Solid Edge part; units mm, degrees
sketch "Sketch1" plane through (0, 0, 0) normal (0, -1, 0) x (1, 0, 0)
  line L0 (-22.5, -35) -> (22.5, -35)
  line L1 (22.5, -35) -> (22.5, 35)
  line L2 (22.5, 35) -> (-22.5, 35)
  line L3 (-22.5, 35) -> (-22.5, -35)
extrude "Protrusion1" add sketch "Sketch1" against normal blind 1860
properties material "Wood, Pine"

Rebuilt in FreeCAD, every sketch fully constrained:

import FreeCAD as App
import Part
import Sketcher
Q = App.Units.Quantity


def add_polygon(sketch, points):
    """Adds a closed chain of lines whose ends are joined by coincident constraints."""
    first, n = sketch.GeometryCount, len(points)
    for a, b in zip(points, points[1:] + points[:1]):
        sketch.addGeometry(Part.LineSegment(App.Vector(*a, 0), App.Vector(*b, 0)), False)
    for i in range(n):
        sketch.addConstraint(Sketcher.Constraint("Coincident", first + i, 2, first + (i + 1) % n, 1))

doc = App.newDocument("Part")
body = doc.addObject("PartDesign::Body", "Body")

# Sketch on XZ plane
sketch1 = body.newObject("Sketcher::SketchObject", "Sketch")
sketch1.AttachmentSupport = (doc.getObject("XZ_Plane"), [""])
sketch1.MapMode = "FlatFace"
add_polygon(sketch1, [(-22.5, 35), (-22.5, -35), (22.5, -35), (22.5, 35)])  # lines 0-3
sketch1.addConstraint(Sketcher.Constraint("Vertical", 0))
sketch1.addConstraint(Sketcher.Constraint("Horizontal", 1))
sketch1.addConstraint(Sketcher.Constraint("Vertical", 2))
sketch1.addConstraint(Sketcher.Constraint("Horizontal", 3))
sketch1.addConstraint(Sketcher.Constraint("Symmetric", 0, 2, 2, 2, -1, 1))
sketch1.addConstraint(Sketcher.Constraint("DistanceX", 1, 1, 1, 2, Q("45 mm")))
sketch1.addConstraint(Sketcher.Constraint("DistanceY", 0, 2, 0, 1, Q("70 mm")))
pad1 = body.newObject("PartDesign::Pad", "Pad")
pad1.Profile = sketch1
pad1.Length = 1860
pad1.Reversed = True

doc.recompute()
